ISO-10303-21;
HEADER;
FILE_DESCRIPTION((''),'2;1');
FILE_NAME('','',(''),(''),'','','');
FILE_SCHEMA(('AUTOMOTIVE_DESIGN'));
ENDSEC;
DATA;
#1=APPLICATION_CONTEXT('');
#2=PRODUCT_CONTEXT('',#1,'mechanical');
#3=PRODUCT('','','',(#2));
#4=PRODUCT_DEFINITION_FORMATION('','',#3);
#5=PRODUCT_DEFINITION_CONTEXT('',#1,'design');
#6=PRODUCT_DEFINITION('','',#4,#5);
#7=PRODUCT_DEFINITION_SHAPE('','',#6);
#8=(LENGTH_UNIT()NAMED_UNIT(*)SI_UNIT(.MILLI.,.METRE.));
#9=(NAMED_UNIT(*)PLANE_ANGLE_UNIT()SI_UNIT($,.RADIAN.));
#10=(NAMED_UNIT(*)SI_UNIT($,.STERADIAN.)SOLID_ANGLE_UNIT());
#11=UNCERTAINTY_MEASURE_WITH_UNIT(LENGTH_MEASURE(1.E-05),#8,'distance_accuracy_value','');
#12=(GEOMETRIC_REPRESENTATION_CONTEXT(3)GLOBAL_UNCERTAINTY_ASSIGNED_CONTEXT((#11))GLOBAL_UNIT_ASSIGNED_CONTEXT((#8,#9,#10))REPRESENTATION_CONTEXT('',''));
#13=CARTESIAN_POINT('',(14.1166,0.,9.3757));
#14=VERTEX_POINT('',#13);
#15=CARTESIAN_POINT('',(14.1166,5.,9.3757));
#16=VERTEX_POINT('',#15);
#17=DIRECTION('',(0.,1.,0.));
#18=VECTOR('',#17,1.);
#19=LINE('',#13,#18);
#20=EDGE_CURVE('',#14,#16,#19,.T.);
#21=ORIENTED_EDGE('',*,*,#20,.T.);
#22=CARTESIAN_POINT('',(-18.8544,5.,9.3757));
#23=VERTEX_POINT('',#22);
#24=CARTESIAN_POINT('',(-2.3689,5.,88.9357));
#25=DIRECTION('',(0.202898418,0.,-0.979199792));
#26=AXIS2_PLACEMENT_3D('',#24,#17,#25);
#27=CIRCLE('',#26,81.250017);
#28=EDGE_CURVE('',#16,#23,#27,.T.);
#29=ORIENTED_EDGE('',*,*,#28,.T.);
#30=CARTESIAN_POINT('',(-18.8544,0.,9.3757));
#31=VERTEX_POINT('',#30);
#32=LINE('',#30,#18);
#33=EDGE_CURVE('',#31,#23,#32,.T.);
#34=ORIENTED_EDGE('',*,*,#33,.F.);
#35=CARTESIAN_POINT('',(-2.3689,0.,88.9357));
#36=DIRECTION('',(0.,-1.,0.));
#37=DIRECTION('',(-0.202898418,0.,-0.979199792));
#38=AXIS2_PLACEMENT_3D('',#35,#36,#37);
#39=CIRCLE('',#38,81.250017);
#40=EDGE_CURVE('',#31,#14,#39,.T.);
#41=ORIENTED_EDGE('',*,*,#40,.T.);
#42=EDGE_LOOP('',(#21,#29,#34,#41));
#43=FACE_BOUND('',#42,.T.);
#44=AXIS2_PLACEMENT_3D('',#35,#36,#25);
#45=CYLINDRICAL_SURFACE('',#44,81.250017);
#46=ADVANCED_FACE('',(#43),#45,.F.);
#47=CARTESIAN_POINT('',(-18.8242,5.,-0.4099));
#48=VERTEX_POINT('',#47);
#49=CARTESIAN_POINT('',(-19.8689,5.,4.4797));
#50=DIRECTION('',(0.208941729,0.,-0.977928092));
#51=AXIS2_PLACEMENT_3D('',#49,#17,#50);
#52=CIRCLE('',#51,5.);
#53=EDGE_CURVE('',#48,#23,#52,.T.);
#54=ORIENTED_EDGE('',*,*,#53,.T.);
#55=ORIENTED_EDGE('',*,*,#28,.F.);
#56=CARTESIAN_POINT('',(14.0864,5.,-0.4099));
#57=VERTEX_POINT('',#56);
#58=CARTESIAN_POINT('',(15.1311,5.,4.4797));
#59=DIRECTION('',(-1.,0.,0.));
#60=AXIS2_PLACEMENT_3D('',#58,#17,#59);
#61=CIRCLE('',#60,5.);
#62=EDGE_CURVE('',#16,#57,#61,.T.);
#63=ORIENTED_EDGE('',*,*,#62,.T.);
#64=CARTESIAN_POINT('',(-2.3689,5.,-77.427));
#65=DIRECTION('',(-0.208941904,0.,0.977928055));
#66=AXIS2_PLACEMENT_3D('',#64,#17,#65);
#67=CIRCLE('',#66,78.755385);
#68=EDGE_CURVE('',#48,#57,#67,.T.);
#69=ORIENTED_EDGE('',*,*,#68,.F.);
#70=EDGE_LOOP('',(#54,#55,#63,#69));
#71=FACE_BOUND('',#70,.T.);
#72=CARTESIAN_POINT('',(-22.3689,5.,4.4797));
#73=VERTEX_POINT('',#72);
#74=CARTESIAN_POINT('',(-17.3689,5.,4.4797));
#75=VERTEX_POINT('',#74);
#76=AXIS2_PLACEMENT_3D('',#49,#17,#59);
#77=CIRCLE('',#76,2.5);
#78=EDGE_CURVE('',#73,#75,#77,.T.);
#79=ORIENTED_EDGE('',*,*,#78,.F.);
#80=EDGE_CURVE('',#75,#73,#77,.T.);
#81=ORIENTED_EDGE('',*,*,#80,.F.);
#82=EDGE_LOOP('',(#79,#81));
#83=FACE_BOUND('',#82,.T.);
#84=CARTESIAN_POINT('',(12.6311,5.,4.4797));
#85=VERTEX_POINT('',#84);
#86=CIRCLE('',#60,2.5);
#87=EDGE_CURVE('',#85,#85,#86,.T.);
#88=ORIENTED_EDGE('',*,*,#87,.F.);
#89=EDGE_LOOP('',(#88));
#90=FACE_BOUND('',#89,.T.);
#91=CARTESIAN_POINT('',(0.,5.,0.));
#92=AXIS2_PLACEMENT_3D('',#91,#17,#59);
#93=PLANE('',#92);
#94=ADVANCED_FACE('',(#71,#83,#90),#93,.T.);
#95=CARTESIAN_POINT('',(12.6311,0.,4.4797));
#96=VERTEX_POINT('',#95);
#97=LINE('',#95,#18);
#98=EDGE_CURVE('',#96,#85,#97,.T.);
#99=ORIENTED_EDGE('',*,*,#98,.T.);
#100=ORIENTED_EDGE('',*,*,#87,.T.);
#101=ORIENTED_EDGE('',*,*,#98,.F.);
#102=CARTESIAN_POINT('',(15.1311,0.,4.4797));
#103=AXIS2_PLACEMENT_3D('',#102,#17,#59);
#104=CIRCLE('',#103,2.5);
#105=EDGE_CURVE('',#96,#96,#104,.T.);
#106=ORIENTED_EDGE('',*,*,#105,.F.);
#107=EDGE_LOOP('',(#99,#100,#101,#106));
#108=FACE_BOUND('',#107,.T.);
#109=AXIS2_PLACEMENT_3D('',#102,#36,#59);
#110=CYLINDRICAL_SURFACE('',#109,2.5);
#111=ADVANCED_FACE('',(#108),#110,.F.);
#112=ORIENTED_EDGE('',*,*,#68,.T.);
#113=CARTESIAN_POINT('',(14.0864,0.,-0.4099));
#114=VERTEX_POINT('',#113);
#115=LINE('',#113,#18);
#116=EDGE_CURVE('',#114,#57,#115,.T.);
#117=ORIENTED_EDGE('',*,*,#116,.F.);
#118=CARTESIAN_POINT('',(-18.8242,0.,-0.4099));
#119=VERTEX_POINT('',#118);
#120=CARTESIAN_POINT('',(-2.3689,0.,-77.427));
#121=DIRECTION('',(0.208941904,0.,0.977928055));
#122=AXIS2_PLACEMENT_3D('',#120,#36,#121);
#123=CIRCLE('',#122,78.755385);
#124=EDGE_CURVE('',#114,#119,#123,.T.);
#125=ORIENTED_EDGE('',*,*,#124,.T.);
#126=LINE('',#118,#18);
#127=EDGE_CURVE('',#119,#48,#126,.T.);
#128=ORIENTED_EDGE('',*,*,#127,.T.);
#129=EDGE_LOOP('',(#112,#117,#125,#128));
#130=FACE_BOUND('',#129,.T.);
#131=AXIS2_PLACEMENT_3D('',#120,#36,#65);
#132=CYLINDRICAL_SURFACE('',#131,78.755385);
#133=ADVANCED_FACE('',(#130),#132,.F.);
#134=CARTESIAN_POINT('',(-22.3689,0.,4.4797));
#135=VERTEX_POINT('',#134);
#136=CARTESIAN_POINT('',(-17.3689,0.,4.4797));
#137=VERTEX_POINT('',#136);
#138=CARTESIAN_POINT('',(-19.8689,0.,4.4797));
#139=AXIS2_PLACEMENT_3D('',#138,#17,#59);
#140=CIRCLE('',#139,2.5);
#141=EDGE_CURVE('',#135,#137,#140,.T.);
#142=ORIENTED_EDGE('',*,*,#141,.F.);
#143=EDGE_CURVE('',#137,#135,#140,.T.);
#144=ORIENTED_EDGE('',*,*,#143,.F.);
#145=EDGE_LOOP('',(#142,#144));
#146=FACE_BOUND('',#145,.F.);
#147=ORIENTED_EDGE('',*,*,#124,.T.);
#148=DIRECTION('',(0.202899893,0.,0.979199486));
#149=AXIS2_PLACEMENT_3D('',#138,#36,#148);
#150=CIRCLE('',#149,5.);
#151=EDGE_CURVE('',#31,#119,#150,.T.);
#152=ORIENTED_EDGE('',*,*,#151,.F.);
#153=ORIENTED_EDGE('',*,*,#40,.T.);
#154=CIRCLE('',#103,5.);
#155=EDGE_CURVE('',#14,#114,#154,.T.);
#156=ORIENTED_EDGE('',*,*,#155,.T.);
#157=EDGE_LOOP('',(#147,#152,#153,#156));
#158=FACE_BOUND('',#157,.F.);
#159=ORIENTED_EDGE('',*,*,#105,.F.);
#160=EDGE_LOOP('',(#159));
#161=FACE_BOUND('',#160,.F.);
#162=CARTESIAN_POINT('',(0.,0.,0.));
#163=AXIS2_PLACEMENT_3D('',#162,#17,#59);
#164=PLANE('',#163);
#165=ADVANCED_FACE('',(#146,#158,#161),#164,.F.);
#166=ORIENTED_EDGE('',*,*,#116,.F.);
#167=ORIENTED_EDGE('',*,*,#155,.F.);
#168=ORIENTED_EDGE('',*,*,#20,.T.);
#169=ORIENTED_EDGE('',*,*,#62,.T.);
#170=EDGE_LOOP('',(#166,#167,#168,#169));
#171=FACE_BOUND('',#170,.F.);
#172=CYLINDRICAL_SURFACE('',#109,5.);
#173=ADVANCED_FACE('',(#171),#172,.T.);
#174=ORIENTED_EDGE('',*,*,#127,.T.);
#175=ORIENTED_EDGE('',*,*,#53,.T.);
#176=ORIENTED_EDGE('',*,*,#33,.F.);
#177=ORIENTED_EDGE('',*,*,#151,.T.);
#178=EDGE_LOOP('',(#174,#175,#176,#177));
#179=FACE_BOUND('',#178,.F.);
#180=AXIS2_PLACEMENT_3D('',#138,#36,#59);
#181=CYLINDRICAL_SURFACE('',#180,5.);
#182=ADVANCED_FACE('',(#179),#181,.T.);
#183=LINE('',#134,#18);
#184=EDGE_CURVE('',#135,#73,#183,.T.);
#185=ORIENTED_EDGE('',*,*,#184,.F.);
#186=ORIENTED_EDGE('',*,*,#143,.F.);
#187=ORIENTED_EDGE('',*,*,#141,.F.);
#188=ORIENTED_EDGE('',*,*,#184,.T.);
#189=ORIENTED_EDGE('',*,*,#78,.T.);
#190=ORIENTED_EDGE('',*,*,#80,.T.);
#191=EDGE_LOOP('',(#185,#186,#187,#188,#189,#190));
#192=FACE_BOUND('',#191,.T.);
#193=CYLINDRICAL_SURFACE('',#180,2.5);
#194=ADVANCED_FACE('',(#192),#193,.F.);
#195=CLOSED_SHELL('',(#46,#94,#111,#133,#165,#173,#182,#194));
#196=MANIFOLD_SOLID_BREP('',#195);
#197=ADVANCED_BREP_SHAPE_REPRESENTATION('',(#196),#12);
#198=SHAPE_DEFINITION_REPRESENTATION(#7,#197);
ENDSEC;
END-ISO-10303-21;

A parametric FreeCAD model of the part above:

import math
import FreeCAD as App
import Part
import Sketcher

V = App.Vector

doc = App.newDocument("Part")
params = doc.addObject("Spreadsheet::Sheet", "Params")
for row, (alias, value) in enumerate([
    ("sketch1_diameter", "5 mm"),
    ("sketch1_radius", "5 mm"),
    ("sketch1_radius2", "81.25 mm"),
    ("pad1_length", "5 mm"),
], start=1):
    params.set(f"A{row}", alias)
    params.set(f"B{row}", "=" + value)
    params.setAlias(f"B{row}", alias)

body = doc.addObject("PartDesign::Body", "Body")

sketch1 = doc.addObject("Sketcher::SketchObject", "Sketch")
body.addObject(sketch1)
sketch1.AttachmentSupport = (doc.XZ_Plane, [""])
sketch1.MapMode = "FlatFace"
sketch1.addGeometry(Part.ArcOfCircle(Part.Circle(V(15.1, 4.5, 0), V(0, 0, 1), 5), math.radians(-102), math.radians(102)), False)
sketch1.addGeometry(Part.ArcOfCircle(Part.Circle(V(-2.4, -77.4, 0), V(0, 0, 1), 78.8), math.radians(78), math.radians(102)), False)
sketch1.addGeometry(Part.ArcOfCircle(Part.Circle(V(-19.9, 4.5, 0), V(0, 0, 1), 5), math.radians(78), math.radians(282)), False)
sketch1.addGeometry(Part.ArcOfCircle(Part.Circle(V(-2.4, 88.9, 0), V(0, 0, 1), 81.3), math.radians(-102), math.radians(-78)), False)
sketch1.addGeometry(Part.Circle(V(15.1, 4.5, 0), V(0, 0, 1), 2.5), False)
sketch1.addGeometry(Part.Circle(V(-19.9, 4.5, 0), V(0, 0, 1), 2.5), False)
sketch1.addConstraint(Sketcher.Constraint("Tangent", 0, 1, 1, 1))
sketch1.addConstraint(Sketcher.Constraint("Tangent", 1, 2, 2, 2))
sketch1.addConstraint(Sketcher.Constraint("Tangent", 2, 1, 3, 1))
sketch1.addConstraint(Sketcher.Constraint("Tangent", 3, 2, 0, 2))
sketch1.addConstraint(Sketcher.Constraint("Coincident", 4, 3, 0, 3))
sketch1.addConstraint(Sketcher.Constraint("Coincident", 5, 3, 2, 3))
sketch1.addConstraint(Sketcher.Constraint("Equal", 0, 2))
sketch1.addConstraint(Sketcher.Constraint("Equal", 4, 5))
sketch1.addConstraint(Sketcher.Constraint("Horizontal", 0, 3, 2, 3))
sketch1.addConstraint(Sketcher.Constraint("Diameter", 4, 5.0))
sketch1.addConstraint(Sketcher.Constraint("Radius", 0, 5.0))
sketch1.addConstraint(Sketcher.Constraint("DistanceX", 2, 3, 0, 3, 35.0))
sketch1.addConstraint(Sketcher.Constraint("Radius", 3, 81.25))
sketch1.addConstraint(Sketcher.Constraint("Radius", 1, 78.7554))
sketch1.addConstraint(Sketcher.Constraint("DistanceY", 0, 1, -1, 1, 0.41))
sketch1.addConstraint(Sketcher.Constraint("DistanceX", -1, 1, 0, 3, 15.131))
sketch1.setExpression("Constraints[9]", "Params.sketch1_diameter")
sketch1.setExpression("Constraints[10]", "Params.sketch1_radius")
sketch1.setExpression("Constraints[12]", "Params.sketch1_radius2")
pad1 = doc.addObject("PartDesign::Pad", "Pad")
body.addObject(pad1)
pad1.Profile = sketch1
pad1.setExpression("Length", "Params.pad1_length")
pad1.Reversed = True

doc.recompute()
